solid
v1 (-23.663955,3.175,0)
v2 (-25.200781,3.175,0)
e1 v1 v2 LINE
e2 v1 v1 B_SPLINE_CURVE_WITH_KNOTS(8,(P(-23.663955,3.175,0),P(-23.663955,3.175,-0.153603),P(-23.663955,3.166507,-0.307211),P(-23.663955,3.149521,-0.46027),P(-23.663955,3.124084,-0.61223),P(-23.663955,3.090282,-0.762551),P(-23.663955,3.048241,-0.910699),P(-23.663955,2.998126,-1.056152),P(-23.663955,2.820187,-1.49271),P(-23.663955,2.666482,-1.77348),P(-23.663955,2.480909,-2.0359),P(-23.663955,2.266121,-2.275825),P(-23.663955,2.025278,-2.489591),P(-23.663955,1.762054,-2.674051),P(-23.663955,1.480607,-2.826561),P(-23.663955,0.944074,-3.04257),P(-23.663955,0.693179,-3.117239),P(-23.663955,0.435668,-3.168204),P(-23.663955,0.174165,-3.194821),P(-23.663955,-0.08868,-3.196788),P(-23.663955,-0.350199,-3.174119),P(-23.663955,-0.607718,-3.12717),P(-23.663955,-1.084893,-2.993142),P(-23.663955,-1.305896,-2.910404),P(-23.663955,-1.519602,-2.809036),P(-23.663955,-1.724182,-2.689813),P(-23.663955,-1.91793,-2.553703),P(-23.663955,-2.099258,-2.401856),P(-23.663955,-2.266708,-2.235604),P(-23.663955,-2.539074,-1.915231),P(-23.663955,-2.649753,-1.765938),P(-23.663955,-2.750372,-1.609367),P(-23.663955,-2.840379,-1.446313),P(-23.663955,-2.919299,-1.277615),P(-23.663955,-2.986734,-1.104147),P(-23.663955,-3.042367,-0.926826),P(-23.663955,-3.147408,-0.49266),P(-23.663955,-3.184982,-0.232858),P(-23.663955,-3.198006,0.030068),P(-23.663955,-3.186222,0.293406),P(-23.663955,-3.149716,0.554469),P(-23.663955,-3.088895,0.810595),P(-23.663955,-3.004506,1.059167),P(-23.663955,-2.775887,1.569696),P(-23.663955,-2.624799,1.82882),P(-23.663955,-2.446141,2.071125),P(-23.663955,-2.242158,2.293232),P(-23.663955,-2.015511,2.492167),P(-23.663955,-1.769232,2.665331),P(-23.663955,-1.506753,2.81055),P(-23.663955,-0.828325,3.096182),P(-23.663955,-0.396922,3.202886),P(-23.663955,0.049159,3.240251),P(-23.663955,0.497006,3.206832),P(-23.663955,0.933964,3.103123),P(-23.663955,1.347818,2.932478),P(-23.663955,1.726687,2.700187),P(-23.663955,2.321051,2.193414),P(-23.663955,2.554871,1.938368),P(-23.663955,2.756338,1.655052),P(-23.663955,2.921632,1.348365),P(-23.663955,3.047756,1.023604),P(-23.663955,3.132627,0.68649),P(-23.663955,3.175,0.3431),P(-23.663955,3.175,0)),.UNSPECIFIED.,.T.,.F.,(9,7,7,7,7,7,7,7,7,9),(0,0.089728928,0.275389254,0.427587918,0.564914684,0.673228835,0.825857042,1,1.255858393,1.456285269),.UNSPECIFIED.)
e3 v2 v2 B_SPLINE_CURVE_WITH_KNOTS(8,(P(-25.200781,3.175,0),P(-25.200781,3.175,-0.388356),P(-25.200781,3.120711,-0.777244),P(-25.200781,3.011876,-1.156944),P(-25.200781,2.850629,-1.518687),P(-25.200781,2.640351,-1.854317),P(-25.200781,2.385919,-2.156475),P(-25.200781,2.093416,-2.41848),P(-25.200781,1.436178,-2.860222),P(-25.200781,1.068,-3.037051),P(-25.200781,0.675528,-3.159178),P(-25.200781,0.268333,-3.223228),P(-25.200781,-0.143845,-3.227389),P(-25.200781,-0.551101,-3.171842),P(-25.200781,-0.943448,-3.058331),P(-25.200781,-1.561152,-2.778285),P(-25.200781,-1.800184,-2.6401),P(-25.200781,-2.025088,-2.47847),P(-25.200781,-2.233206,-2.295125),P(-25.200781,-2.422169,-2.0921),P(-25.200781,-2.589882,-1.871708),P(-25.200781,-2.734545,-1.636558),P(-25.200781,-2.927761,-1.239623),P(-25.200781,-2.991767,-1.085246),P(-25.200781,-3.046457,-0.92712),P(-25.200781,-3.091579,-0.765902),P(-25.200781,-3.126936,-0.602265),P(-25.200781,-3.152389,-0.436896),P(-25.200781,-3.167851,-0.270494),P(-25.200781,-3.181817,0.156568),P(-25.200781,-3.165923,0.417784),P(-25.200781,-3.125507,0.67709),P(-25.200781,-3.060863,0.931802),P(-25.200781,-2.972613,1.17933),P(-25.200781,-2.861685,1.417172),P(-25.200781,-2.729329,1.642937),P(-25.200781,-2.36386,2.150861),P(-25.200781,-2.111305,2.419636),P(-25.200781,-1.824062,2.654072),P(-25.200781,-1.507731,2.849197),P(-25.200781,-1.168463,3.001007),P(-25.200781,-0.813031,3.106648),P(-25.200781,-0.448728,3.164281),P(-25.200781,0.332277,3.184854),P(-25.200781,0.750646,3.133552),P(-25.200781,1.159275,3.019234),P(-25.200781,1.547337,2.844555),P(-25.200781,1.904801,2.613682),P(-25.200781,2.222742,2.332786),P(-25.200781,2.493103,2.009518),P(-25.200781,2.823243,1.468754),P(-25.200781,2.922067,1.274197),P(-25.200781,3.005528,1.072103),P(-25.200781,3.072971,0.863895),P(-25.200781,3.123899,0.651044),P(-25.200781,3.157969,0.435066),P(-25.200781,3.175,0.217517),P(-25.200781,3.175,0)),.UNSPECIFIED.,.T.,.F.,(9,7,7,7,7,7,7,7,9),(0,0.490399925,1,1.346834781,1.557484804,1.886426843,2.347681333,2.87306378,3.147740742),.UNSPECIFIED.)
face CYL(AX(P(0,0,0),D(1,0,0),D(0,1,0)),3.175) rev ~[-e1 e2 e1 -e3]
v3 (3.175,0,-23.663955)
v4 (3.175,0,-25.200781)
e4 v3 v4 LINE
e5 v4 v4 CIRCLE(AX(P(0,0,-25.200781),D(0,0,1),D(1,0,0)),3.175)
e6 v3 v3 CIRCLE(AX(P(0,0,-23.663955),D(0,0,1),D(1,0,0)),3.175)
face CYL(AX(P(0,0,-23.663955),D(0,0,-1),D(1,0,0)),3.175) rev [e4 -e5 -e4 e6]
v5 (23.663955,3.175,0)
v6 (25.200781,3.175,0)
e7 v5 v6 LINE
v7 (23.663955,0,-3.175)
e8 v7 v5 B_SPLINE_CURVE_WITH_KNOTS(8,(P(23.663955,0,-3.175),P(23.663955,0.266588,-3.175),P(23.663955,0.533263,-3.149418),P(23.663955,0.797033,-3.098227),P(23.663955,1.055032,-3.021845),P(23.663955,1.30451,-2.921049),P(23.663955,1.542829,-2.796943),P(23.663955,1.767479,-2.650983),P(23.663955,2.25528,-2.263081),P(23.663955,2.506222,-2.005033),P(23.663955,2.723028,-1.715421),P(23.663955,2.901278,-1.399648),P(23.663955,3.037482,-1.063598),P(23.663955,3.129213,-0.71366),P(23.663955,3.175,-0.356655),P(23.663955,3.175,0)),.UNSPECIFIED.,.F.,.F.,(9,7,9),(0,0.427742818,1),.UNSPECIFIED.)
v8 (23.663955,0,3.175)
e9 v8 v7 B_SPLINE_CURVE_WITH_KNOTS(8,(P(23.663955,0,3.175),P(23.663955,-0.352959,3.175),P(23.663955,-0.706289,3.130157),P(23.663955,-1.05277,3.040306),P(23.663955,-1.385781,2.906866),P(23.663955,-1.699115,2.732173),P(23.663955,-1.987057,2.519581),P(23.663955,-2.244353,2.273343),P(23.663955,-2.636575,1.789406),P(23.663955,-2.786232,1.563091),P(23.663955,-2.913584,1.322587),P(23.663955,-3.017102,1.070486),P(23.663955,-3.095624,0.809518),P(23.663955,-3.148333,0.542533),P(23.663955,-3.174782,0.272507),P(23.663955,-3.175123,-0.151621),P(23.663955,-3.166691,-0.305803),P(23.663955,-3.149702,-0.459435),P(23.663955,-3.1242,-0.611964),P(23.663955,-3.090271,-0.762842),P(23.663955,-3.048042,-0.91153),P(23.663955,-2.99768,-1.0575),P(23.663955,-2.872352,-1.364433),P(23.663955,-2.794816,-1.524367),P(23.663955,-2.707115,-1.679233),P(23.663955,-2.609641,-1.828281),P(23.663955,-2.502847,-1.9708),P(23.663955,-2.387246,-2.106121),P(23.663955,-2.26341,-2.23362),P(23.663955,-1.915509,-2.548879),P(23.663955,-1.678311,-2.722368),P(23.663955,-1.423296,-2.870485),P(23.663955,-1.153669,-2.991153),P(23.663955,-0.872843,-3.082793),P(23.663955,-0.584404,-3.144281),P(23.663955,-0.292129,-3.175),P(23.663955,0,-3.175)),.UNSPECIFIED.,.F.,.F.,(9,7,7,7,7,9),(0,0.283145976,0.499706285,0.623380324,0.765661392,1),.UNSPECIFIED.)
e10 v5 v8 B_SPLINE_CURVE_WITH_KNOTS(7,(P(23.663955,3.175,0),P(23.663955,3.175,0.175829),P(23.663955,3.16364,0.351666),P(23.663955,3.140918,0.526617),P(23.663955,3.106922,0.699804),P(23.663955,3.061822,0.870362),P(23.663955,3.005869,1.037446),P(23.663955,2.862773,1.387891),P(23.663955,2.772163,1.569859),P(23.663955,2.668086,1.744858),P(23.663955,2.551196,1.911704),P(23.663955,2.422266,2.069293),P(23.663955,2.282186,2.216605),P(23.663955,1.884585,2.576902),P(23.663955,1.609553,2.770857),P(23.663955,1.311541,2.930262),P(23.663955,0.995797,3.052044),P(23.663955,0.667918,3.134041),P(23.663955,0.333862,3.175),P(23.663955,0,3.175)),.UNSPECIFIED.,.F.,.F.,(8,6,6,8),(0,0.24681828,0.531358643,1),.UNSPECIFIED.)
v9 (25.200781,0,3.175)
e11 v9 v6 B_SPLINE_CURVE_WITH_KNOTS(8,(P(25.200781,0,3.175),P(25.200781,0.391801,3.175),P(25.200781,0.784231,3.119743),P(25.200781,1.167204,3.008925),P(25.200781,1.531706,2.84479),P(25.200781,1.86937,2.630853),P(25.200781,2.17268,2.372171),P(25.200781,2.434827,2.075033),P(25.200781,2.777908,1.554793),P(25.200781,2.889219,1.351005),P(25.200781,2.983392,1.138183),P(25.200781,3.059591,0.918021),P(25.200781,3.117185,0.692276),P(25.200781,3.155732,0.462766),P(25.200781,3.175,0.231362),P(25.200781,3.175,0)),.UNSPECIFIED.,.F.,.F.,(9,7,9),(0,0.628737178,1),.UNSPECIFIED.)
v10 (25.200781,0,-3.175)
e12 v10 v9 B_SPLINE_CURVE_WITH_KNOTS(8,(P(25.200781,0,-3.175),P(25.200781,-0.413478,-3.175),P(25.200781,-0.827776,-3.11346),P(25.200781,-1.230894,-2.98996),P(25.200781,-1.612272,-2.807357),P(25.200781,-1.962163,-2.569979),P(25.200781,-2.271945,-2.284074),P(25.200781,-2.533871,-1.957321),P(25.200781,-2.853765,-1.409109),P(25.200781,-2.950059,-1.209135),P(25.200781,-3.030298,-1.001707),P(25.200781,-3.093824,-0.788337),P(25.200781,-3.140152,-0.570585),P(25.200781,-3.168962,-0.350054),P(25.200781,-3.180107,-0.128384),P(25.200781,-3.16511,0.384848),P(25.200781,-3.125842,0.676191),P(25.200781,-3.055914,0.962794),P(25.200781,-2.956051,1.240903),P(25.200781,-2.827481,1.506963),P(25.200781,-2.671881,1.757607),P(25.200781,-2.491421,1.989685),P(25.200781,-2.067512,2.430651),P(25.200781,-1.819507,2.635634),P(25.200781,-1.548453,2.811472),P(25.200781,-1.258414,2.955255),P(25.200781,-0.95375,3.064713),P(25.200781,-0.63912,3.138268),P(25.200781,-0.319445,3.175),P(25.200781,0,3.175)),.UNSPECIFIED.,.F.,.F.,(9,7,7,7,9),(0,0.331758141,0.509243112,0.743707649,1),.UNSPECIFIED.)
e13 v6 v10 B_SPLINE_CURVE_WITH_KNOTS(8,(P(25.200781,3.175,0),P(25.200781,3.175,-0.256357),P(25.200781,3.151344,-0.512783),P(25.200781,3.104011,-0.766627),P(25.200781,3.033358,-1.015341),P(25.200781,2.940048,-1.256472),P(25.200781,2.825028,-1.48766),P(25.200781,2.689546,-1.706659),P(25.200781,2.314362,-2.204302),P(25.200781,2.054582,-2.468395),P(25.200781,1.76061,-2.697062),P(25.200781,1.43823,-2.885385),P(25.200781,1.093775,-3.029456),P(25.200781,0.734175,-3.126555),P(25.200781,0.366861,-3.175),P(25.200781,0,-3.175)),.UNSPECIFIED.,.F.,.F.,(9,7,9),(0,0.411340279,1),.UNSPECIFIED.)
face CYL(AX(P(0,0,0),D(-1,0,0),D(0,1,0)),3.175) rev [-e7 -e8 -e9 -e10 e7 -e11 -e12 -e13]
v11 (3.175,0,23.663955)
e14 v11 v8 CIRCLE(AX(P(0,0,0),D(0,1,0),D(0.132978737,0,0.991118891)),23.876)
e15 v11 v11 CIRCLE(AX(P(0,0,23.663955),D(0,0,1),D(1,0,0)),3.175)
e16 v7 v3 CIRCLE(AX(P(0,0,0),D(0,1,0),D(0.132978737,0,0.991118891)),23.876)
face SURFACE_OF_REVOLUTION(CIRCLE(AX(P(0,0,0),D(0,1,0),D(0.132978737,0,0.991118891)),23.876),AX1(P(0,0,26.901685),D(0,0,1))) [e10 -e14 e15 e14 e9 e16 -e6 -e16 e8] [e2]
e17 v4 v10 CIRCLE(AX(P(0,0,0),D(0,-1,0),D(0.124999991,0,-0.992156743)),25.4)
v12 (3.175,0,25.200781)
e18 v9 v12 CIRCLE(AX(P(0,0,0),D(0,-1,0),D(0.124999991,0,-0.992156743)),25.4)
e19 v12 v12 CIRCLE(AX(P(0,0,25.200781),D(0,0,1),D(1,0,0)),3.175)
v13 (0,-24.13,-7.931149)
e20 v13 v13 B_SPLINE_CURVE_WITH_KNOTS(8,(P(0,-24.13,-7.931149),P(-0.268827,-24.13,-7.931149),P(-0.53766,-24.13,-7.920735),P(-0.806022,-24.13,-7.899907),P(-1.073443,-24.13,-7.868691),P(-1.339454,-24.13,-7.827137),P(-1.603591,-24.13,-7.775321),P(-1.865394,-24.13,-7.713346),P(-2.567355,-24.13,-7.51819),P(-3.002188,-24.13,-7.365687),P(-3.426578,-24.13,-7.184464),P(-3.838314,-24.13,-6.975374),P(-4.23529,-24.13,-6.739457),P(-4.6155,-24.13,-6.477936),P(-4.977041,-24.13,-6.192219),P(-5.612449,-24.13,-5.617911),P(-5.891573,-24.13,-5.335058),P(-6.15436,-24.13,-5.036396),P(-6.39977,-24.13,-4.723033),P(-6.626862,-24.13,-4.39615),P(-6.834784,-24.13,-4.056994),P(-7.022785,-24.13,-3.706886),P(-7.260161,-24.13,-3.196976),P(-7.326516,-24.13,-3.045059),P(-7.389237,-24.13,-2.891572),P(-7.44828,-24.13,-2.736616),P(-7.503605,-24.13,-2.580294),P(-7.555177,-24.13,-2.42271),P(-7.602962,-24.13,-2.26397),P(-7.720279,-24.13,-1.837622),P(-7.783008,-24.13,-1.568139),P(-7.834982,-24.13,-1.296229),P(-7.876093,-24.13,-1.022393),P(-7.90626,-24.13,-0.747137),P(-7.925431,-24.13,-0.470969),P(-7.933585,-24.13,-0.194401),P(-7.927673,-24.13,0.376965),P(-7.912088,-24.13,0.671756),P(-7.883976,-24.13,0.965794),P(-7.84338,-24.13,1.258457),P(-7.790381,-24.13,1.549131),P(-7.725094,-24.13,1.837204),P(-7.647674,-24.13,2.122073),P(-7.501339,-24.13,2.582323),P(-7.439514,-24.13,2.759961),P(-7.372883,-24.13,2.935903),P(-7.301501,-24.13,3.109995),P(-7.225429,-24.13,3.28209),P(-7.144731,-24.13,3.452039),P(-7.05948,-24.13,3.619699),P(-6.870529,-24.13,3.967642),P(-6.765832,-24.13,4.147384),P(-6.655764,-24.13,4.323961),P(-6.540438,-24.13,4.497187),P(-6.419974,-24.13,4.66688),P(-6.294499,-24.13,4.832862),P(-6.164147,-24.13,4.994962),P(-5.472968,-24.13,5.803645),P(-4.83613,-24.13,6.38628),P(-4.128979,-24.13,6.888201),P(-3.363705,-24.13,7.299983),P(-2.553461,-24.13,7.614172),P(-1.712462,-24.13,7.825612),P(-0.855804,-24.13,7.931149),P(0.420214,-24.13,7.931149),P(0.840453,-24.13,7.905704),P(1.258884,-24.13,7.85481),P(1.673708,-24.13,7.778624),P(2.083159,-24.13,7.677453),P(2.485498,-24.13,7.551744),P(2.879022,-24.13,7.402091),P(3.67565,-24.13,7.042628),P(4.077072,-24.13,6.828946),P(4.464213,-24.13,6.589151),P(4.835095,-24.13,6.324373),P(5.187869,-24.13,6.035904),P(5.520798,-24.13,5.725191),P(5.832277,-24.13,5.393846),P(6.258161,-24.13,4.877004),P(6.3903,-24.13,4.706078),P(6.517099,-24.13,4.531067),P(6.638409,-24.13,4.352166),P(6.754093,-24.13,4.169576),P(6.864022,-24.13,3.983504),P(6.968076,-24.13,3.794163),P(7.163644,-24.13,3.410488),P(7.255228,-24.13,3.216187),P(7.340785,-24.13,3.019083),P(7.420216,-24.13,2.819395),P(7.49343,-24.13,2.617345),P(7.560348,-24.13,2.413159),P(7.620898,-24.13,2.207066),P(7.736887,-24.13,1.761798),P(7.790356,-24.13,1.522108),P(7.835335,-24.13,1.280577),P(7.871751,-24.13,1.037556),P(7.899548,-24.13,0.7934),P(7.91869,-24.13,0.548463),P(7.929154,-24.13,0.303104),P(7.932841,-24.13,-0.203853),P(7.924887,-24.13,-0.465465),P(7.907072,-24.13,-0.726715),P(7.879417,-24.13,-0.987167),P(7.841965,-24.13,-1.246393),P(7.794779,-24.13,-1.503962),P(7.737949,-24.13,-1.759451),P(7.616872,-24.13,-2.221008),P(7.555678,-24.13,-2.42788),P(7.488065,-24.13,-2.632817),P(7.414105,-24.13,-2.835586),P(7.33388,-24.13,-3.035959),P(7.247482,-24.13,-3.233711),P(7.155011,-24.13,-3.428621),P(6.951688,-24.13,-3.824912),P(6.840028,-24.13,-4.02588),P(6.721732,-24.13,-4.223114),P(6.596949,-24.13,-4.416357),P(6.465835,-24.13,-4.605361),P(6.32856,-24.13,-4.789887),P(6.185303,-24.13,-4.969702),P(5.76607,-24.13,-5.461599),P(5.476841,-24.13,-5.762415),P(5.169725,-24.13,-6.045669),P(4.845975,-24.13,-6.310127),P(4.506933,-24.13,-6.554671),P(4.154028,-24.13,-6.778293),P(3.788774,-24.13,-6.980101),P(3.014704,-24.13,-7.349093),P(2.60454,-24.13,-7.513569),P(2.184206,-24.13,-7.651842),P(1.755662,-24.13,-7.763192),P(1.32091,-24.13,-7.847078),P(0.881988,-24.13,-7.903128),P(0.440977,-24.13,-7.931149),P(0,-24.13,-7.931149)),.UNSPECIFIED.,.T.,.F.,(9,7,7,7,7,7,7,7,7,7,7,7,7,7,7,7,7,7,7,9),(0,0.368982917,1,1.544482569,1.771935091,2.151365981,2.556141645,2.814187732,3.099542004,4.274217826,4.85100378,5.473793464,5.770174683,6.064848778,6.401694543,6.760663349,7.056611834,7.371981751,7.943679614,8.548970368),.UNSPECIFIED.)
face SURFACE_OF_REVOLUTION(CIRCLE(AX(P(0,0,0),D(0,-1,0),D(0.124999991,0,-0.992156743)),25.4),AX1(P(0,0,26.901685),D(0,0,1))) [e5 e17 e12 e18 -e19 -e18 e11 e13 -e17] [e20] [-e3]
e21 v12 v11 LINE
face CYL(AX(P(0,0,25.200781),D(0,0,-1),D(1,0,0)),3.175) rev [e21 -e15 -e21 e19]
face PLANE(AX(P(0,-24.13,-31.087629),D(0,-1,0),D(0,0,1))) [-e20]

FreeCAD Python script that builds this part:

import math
import FreeCAD as App
import Part
import Sketcher

V = App.Vector
Q = App.Units.Quantity

doc = App.newDocument("Part")
body = doc.addObject("PartDesign::Body", "Body")

sketch1 = body.newObject("Sketcher::SketchObject", "Sketch")
sketch1.AttachmentSupport = (doc.getObject("XZ_Plane"), [""])
sketch1.MapMode = "FlatFace"
sketch1.addGeometry([
    Part.ArcOfCircle(Part.Circle(V(0, 0, 0), V(0, 0, 1), 23.9), math.radians(-82), math.radians(82)),
    Part.LineSegment(V(3.2, -23.7, 0), V(3.2, -25.2, 0)),
    Part.ArcOfCircle(Part.Circle(V(0, 0, 0), V(0, 0, 1), 25.4), math.radians(-83), math.radians(83)),
    Part.LineSegment(V(3.2, 25.2, 0), V(3.2, 23.7, 0)),
], False)
sketch1.addConstraint([
    Sketcher.Constraint("Coincident", 0, 1, 1, 1),
    Sketcher.Constraint("Coincident", 1, 2, 2, 1),
    Sketcher.Constraint("Coincident", 2, 2, 3, 1),
    Sketcher.Constraint("Coincident", 3, 2, 0, 2),
    Sketcher.Constraint("Vertical", 1),
    Sketcher.Constraint("Vertical", 3),
    Sketcher.Constraint("Coincident", 0, 3, -1, 1),
    Sketcher.Constraint("Coincident", 2, 3, -1, 1),
    Sketcher.Constraint("Vertical", 1, 2, 2, 2),
    Sketcher.Constraint("Radius", 2, Q("1 in")),
    Sketcher.Constraint("Radius", 0, Q("0.94 in")),
    Sketcher.Constraint("DistanceX", -1, 1, 0, 1, Q("0.125 in")),
])
revolution = body.newObject("PartDesign::Revolution", "Revolution")
revolution.Profile = sketch1
revolution.ReferenceAxis = (sketch1, ["V_Axis"])
revolution.Angle = 360

sketch2 = body.newObject("Sketcher::SketchObject", "Sketch001")
sketch2.AttachmentSupport = (doc.getObject("YZ_Plane"), [""])
sketch2.MapMode = "FlatFace"
sketch2.addGeometry(Part.Circle(V(0, 0, 0), V(0, 0, 1), 3.2), False)
sketch2.addConstraint([
    Sketcher.Constraint("Coincident", 0, 3, -1, 1),
    Sketcher.Constraint("Diameter", 0, Q("0.25 in")),
])
pocket1 = body.newObject("PartDesign::Pocket", "Pocket")
pocket1.Profile = sketch2
pocket1.Type = "ThroughAll"
pocket1.Midplane = True

sketch3 = body.newObject("Sketcher::SketchObject", "Sketch002")
sketch3.AttachmentSupport = (doc.getObject("YZ_Plane"), [""])
sketch3.MapMode = "FlatFace"
sketch3.addGeometry([
    Part.LineSegment(V(-30, 31, 0), V(-30, -31, 0)),
    Part.LineSegment(V(-30, -31, 0), V(-24, -31, 0)),
    Part.LineSegment(V(-24, -31, 0), V(-24, 31, 0)),
    Part.LineSegment(V(-24, 31, 0), V(-30, 31, 0)),
], False)
sketch3.addConstraint([
    Sketcher.Constraint("Coincident", 0, 2, 1, 1),
    Sketcher.Constraint("Coincident", 1, 2, 2, 1),
    Sketcher.Constraint("Coincident", 2, 2, 3, 1),
    Sketcher.Constraint("Coincident", 3, 2, 0, 1),
    Sketcher.Constraint("Vertical", 0),
    Sketcher.Constraint("Horizontal", 1),
    Sketcher.Constraint("Vertical", 2),
    Sketcher.Constraint("Horizontal", 3),
    Sketcher.Constraint("DistanceX", 1, 2, -1, 1, Q("0.95 in")),
    Sketcher.Constraint("DistanceX", 1, 1, 1, 2, Q("5.873753 mm")),
    Sketcher.Constraint("DistanceY", 0, 2, 0, 1, Q("62.273792 mm")),
    Sketcher.Constraint("DistanceY", 0, 2, -1, 1, Q("31.087629 mm")),
])
pocket2 = body.newObject("PartDesign::Pocket", "Pocket001")
pocket2.Profile = sketch3
pocket2.Type = "ThroughAll"
pocket2.Midplane = True

doc.recompute()
